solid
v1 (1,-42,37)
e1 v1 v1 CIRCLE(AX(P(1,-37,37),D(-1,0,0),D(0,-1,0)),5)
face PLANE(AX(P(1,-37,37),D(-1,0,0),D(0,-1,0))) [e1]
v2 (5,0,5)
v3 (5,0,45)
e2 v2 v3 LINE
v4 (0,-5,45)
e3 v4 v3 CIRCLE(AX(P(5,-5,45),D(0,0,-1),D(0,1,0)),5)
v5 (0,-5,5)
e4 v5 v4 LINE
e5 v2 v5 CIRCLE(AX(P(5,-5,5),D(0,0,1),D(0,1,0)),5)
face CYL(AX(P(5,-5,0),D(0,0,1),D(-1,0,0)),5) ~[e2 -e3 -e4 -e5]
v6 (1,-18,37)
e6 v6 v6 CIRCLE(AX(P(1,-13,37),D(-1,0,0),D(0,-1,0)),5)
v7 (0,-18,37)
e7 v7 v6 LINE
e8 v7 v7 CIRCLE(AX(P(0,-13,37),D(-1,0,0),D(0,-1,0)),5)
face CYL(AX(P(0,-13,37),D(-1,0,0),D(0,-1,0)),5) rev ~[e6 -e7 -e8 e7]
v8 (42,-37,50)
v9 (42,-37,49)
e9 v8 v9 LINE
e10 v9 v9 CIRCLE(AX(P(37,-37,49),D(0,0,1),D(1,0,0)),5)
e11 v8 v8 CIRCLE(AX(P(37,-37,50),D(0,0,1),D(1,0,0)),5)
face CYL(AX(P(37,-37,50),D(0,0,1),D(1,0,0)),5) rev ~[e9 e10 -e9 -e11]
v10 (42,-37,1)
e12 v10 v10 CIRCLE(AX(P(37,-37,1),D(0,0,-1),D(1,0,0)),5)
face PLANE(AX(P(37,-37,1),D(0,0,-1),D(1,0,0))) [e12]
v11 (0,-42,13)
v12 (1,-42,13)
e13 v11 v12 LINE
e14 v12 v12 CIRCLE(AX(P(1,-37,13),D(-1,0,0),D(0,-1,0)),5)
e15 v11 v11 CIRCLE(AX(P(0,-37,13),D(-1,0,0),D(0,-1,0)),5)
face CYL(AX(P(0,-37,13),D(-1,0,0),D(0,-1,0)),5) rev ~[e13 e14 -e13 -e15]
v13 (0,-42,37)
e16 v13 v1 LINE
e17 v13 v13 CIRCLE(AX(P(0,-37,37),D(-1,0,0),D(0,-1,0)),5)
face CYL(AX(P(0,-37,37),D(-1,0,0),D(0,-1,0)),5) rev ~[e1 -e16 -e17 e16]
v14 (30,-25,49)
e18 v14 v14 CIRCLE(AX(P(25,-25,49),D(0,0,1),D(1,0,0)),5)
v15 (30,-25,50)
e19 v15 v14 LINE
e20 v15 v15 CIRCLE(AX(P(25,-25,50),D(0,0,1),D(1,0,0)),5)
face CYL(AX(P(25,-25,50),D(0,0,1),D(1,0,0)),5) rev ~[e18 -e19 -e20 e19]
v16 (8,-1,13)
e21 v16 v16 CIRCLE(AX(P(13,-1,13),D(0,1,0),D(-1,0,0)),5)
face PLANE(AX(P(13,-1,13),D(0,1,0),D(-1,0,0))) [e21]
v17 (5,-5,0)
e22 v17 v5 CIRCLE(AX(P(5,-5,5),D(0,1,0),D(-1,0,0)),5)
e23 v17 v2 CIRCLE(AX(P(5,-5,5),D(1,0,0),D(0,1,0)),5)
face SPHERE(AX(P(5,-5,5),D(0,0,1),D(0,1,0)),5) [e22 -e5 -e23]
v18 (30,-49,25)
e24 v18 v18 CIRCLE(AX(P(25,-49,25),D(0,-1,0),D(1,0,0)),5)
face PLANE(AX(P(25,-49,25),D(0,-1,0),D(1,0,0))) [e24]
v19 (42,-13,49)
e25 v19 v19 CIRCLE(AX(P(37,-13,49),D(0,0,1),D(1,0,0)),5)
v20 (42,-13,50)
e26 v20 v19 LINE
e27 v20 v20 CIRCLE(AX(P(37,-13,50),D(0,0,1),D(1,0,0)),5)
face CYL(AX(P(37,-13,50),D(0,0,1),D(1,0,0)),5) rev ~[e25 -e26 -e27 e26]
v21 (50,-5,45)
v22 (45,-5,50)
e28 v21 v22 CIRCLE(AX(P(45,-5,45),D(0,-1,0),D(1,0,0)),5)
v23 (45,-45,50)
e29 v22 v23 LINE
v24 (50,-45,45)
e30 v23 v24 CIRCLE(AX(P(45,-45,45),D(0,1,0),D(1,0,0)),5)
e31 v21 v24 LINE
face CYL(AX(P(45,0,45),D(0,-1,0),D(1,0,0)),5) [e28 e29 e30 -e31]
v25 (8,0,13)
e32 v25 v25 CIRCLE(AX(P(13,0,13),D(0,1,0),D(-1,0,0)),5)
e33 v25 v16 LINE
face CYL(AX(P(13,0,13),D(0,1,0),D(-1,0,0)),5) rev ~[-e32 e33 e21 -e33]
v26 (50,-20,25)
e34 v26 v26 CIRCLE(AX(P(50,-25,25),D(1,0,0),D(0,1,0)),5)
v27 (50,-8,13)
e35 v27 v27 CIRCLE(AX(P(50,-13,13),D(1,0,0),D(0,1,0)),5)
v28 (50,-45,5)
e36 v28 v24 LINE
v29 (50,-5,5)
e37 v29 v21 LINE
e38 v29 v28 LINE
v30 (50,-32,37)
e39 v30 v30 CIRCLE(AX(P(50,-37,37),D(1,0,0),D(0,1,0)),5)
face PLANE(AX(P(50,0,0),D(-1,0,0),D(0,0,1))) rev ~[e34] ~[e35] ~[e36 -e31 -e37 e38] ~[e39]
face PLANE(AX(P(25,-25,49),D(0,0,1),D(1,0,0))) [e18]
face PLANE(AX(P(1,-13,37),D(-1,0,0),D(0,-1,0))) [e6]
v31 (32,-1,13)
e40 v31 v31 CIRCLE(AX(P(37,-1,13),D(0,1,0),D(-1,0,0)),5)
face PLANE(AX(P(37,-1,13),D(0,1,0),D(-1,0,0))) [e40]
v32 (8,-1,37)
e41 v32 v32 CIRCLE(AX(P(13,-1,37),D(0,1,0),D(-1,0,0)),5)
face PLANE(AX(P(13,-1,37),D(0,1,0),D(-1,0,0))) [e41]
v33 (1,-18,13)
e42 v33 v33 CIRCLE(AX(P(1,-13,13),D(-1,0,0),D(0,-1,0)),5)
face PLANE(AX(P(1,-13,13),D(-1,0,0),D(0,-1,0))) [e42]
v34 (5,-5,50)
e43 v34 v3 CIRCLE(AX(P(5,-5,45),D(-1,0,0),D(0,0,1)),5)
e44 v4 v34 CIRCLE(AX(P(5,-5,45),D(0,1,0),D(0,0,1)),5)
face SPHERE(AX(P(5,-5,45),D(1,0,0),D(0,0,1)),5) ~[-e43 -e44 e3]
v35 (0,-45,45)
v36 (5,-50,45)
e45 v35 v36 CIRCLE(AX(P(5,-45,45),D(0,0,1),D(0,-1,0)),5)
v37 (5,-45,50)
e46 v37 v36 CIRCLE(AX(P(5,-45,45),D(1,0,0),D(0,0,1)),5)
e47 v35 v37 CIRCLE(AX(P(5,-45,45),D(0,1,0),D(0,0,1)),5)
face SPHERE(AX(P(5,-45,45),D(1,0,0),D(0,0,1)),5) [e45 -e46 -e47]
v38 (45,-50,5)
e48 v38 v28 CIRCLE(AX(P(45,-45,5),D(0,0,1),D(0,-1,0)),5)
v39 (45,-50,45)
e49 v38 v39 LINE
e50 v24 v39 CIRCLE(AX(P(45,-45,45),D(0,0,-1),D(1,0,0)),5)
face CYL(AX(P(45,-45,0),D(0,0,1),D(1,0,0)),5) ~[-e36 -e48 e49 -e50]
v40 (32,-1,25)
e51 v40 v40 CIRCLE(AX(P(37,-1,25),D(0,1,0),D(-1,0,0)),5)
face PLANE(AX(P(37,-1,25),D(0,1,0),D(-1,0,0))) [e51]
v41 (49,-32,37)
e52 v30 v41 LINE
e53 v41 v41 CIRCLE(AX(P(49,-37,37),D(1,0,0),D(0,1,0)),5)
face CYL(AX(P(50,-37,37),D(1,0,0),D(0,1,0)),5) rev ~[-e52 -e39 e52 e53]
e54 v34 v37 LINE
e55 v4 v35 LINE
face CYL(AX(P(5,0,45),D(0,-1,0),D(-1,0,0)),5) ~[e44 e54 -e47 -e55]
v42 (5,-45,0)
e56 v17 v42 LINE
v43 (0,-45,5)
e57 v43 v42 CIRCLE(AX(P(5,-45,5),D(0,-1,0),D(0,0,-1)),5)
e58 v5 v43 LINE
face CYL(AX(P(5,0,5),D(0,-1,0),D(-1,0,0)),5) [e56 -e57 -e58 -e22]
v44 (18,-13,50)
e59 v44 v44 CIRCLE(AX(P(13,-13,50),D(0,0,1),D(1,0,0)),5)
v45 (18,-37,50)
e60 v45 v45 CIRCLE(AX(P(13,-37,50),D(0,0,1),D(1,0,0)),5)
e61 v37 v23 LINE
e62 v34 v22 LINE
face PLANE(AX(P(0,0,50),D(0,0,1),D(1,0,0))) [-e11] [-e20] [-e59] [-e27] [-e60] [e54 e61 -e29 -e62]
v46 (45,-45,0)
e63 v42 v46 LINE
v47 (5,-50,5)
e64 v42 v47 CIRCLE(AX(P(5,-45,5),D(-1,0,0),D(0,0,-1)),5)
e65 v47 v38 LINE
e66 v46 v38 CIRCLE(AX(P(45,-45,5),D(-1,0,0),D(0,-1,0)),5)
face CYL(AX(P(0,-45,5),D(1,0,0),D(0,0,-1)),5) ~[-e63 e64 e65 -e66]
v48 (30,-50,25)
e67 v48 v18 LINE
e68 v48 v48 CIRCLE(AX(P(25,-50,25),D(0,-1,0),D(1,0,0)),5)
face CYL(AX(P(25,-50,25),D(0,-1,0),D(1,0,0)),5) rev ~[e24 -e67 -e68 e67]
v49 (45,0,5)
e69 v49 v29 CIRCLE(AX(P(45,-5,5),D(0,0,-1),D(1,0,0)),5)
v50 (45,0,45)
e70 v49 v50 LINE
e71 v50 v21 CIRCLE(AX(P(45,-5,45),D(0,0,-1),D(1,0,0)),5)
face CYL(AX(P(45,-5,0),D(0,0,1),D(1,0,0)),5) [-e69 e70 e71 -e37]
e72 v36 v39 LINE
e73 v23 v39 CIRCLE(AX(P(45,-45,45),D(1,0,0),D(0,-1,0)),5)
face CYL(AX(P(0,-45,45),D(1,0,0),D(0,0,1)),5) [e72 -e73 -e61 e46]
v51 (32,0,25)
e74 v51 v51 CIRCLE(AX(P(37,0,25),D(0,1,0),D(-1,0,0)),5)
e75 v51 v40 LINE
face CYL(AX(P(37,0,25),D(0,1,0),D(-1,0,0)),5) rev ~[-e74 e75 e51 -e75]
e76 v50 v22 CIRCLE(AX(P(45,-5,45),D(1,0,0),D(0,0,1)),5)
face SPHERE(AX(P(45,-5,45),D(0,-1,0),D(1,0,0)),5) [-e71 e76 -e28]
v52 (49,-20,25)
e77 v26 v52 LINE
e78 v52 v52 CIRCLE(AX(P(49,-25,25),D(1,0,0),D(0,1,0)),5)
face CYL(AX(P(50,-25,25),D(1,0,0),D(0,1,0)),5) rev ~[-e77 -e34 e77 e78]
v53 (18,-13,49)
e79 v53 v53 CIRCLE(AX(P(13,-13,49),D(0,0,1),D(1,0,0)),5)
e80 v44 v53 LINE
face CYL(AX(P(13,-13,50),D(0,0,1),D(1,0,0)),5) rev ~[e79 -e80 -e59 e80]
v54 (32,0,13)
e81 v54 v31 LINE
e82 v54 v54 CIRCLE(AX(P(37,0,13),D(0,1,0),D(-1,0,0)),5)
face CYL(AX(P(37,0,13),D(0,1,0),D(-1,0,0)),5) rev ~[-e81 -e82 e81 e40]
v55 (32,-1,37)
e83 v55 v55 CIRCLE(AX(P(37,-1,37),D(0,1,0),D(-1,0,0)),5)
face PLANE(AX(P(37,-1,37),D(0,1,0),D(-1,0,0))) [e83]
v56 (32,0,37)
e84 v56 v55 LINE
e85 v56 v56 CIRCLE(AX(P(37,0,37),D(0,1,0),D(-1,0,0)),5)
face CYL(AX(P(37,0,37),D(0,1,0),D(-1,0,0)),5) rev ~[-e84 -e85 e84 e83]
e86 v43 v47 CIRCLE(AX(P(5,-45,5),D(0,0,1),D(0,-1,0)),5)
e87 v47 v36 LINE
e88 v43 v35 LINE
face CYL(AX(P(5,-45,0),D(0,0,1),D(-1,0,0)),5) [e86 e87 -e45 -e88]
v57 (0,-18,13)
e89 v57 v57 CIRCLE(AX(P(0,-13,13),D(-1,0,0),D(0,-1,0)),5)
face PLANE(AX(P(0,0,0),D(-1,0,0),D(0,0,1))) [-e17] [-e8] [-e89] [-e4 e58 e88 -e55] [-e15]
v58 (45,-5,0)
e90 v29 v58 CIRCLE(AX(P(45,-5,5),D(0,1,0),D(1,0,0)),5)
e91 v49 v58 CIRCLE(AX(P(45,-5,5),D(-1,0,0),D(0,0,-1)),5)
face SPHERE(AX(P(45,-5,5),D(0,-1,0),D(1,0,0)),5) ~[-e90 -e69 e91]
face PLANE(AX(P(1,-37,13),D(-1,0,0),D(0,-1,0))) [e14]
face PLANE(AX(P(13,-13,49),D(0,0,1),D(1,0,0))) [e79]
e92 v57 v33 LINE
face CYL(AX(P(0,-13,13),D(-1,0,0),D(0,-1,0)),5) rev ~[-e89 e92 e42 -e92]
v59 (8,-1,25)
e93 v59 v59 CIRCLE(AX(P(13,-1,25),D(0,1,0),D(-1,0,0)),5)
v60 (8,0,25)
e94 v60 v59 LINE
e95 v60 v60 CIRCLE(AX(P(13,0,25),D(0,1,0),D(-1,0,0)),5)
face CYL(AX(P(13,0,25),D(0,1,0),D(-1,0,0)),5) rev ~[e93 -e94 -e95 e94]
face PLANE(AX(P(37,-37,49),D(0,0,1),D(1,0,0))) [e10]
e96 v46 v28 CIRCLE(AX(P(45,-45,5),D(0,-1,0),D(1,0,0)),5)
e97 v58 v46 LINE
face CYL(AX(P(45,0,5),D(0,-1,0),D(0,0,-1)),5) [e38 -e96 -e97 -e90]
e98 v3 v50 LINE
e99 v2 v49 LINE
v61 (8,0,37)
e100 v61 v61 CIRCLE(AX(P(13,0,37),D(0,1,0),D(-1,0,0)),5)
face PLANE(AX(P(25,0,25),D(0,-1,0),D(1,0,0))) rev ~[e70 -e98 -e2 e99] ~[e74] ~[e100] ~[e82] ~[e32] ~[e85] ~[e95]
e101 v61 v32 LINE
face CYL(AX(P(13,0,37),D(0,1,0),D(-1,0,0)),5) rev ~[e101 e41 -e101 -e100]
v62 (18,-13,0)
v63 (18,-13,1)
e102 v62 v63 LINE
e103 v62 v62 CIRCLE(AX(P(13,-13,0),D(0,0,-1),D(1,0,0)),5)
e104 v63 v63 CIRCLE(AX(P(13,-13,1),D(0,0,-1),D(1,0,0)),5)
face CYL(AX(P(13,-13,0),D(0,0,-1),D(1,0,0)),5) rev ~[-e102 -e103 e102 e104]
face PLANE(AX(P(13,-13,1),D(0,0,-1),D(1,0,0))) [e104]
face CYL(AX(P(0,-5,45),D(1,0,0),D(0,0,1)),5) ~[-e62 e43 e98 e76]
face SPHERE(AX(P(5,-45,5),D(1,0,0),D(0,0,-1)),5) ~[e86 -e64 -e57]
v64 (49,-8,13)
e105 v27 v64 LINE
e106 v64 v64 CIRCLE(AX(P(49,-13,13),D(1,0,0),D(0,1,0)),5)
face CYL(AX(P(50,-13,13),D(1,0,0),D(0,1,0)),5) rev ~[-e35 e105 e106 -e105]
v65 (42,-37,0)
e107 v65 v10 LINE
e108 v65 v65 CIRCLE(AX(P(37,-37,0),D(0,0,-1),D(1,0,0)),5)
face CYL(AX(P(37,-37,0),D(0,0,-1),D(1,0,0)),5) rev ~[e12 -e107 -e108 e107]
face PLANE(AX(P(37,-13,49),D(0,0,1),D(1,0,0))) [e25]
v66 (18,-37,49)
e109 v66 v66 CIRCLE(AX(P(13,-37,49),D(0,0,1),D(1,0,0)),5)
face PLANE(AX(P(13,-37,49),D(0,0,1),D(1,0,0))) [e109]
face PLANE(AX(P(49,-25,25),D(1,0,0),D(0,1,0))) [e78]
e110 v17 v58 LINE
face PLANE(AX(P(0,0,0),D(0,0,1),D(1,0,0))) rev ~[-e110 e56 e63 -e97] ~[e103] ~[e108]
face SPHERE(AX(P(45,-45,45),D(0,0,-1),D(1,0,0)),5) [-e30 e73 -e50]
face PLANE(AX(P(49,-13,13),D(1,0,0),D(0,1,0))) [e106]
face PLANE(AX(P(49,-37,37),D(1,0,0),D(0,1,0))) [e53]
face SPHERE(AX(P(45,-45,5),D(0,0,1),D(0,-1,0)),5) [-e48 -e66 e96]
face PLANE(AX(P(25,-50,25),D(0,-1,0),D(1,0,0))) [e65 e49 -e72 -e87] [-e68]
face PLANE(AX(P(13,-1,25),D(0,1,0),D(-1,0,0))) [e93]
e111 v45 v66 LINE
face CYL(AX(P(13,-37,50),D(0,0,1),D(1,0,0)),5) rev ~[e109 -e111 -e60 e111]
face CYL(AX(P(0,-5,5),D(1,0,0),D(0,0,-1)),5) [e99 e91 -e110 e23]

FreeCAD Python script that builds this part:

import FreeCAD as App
import Part
import Sketcher


def add_polygon(sketch, points):
    """Adds a closed chain of lines whose ends are joined by coincident constraints."""
    first, n = sketch.GeometryCount, len(points)
    for a, b in zip(points, points[1:] + points[:1]):
        sketch.addGeometry(Part.LineSegment(App.Vector(*a, 0), App.Vector(*b, 0)), False)
    for i in range(n):
        sketch.addConstraint(Sketcher.Constraint("Coincident", first + i, 2, first + (i + 1) % n, 1))

doc = App.newDocument("Part")
body = doc.addObject("PartDesign::Body", "Body")

sketch1 = body.newObject("Sketcher::SketchObject", "Sketch")
sketch1.AttachmentSupport = (doc.getObject("XZ_Plane"), [""])
sketch1.MapMode = "FlatFace"
add_polygon(sketch1, [(0, 50), (0, 0), (50, 0), (50, 50)])
sketch1.addConstraint(Sketcher.Constraint("Vertical", 0))
sketch1.addConstraint(Sketcher.Constraint("Horizontal", 1))
sketch1.addConstraint(Sketcher.Constraint("Vertical", 2))
sketch1.addConstraint(Sketcher.Constraint("Horizontal", 3))
sketch1.addConstraint(Sketcher.Constraint("Coincident", 0, 2, -1, 1))
sketch1.addConstraint(Sketcher.Constraint("Equal", 3, 0))
sketch1.addConstraint(Sketcher.Constraint("DistanceX", 1, 1, 1, 2, 50.0))
pad1 = body.newObject("PartDesign::Pad", "Pad")
pad1.Profile = sketch1
pad1.Length = 50
doc.recompute()

fillet = body.newObject("PartDesign::Fillet", "Fillet")
fillet.Base = (pad1, ["Edge1"])
fillet.UseAllEdges = True
fillet.Radius = 5

sketch2 = body.newObject("Sketcher::SketchObject", "Sketch001")
sketch2.AttachmentSupport = (doc.getObject("XZ_Plane"), [""])
sketch2.MapMode = "FlatFace"
sketch2.AttachmentOffset = App.Placement(App.Vector(0, 0, 50), App.Rotation())
sketch2.addGeometry(Part.Circle(App.Vector(25, 25, 0), App.Vector(0, 0, 1), 5), False)
sketch2.addConstraint(Sketcher.Constraint("Diameter", 0, 10.0))
sketch2.addConstraint(Sketcher.Constraint("DistanceX", -1, 1, 0, 3, 25.0))
sketch2.addConstraint(Sketcher.Constraint("DistanceY", -1, 1, 0, 3, 25.0))
pocket1 = body.newObject("PartDesign::Pocket", "Pocket")
pocket1.Profile = sketch2
pocket1.Length = 1

sketch3 = body.newObject("Sketcher::SketchObject", "Sketch002")
sketch3.AttachmentSupport = (doc.getObject("XZ_Plane"), [""])
sketch3.MapMode = "FlatFace"
sketch3.addGeometry(Part.Circle(App.Vector(37, 37, 0), App.Vector(0, 0, 1), 5), False)
sketch3.addGeometry(Part.Circle(App.Vector(13, 37, 0), App.Vector(0, 0, 1), 5), False)
sketch3.addGeometry(Part.Circle(App.Vector(37, 25, 0), App.Vector(0, 0, 1), 5), False)
sketch3.addGeometry(Part.Circle(App.Vector(13, 25, 0), App.Vector(0, 0, 1), 5), False)
sketch3.addGeometry(Part.Circle(App.Vector(13, 13, 0), App.Vector(0, 0, 1), 5), False)
sketch3.addGeometry(Part.Circle(App.Vector(37, 13, 0), App.Vector(0, 0, 1), 5), False)
sketch3.addConstraint(Sketcher.Constraint("Equal", 0, 1))
sketch3.addConstraint(Sketcher.Constraint("Equal", 1, 2))
sketch3.addConstraint(Sketcher.Constraint("Equal", 2, 3))
sketch3.addConstraint(Sketcher.Constraint("Equal", 3, 4))
sketch3.addConstraint(Sketcher.Constraint("Equal", 4, 5))
sketch3.addConstraint(Sketcher.Constraint("Horizontal", 0, 3, 1, 3))
sketch3.addConstraint(Sketcher.Constraint("Horizontal", 2, 3, 3, 3))
sketch3.addConstraint(Sketcher.Constraint("Horizontal", 4, 3, 5, 3))
sketch3.addConstraint(Sketcher.Constraint("Vertical", 0, 3, 2, 3))
sketch3.addConstraint(Sketcher.Constraint("Vertical", 1, 3, 3, 3))
sketch3.addConstraint(Sketcher.Constraint("Vertical", 3, 3, 4, 3))
sketch3.addConstraint(Sketcher.Constraint("Vertical", 2, 3, 5, 3))
sketch3.addConstraint(Sketcher.Constraint("Diameter", 0, 10.0))
sketch3.addConstraint(Sketcher.Constraint("DistanceX", -1, 1, 0, 3, 37.0))
sketch3.addConstraint(Sketcher.Constraint("DistanceY", -1, 1, 0, 3, 37.0))
sketch3.addConstraint(Sketcher.Constraint("DistanceX", -1, 1, 1, 3, 13.0))
sketch3.addConstraint(Sketcher.Constraint("DistanceY", -1, 1, 2, 3, 25.0))
sketch3.addConstraint(Sketcher.Constraint("DistanceY", -1, 1, 4, 3, 13.0))
pocket2 = body.newObject("PartDesign::Pocket", "Pocket001")
pocket2.Profile = sketch3
pocket2.Length = 1
pocket2.Reversed = True

sketch4 = body.newObject("Sketcher::SketchObject", "Sketch003")
sketch4.AttachmentSupport = (doc.getObject("XY_Plane"), [""])
sketch4.MapMode = "FlatFace"
sketch4.AttachmentOffset = App.Placement(App.Vector(0, 0, 50), App.Rotation())
sketch4.addGeometry(Part.Circle(App.Vector(37, -13, 0), App.Vector(0, 0, 1), 5), False)
sketch4.addGeometry(Part.Circle(App.Vector(37, -37, 0), App.Vector(0, 0, 1), 5), False)
sketch4.addGeometry(Part.Circle(App.Vector(25, -25, 0), App.Vector(0, 0, 1), 5), False)
sketch4.addGeometry(Part.Circle(App.Vector(13, -13, 0), App.Vector(0, 0, 1), 5), False)
sketch4.addGeometry(Part.Circle(App.Vector(13, -37, 0), App.Vector(0, 0, 1), 5), False)
sketch4.addConstraint(Sketcher.Constraint("Equal", 0, 1))
sketch4.addConstraint(Sketcher.Constraint("Equal", 1, 2))
sketch4.addConstraint(Sketcher.Constraint("Equal", 2, 3))
sketch4.addConstraint(Sketcher.Constraint("Equal", 3, 4))
sketch4.addConstraint(Sketcher.Constraint("Horizontal", 0, 3, 3, 3))
sketch4.addConstraint(Sketcher.Constraint("Horizontal", 1, 3, 4, 3))
sketch4.addConstraint(Sketcher.Constraint("Vertical", 0, 3, 1, 3))
sketch4.addConstraint(Sketcher.Constraint("Vertical", 3, 3, 4, 3))
sketch4.addConstraint(Sketcher.Constraint("Diameter", 0, 10.0))
sketch4.addConstraint(Sketcher.Constraint("DistanceX", -1, 1, 0, 3, 37.0))
sketch4.addConstraint(Sketcher.Constraint("DistanceY", 0, 3, -1, 1, 13.0))
sketch4.addConstraint(Sketcher.Constraint("DistanceY", 1, 3, -1, 1, 37.0))
sketch4.addConstraint(Sketcher.Constraint("DistanceX", -1, 1, 2, 3, 25.0))
sketch4.addConstraint(Sketcher.Constraint("DistanceY", 2, 3, -1, 1, 25.0))
sketch4.addConstraint(Sketcher.Constraint("DistanceX", -1, 1, 3, 3, 13.0))
pocket3 = body.newObject("PartDesign::Pocket", "Pocket002")
pocket3.Profile = sketch4
pocket3.Length = 1

sketch5 = body.newObject("Sketcher::SketchObject", "Sketch004")
sketch5.AttachmentSupport = (doc.getObject("XY_Plane"), [""])
sketch5.MapMode = "FlatFace"
sketch5.addGeometry(Part.Circle(App.Vector(37, -37, 0), App.Vector(0, 0, 1), 5), False)
sketch5.addGeometry(Part.Circle(App.Vector(13, -13, 0), App.Vector(0, 0, 1), 5), False)
sketch5.addConstraint(Sketcher.Constraint("Equal", 0, 1))
sketch5.addConstraint(Sketcher.Constraint("Diameter", 0, 10.0))
sketch5.addConstraint(Sketcher.Constraint("DistanceX", -1, 1, 0, 3, 37.0))
sketch5.addConstraint(Sketcher.Constraint("DistanceY", 0, 3, -1, 1, 37.0))
sketch5.addConstraint(Sketcher.Constraint("DistanceX", -1, 1, 1, 3, 13.0))
sketch5.addConstraint(Sketcher.Constraint("DistanceY", 1, 3, -1, 1, 13.0))
pocket4 = body.newObject("PartDesign::Pocket", "Pocket003")
pocket4.Profile = sketch5
pocket4.Length = 1
pocket4.Reversed = True

sketch6 = body.newObject("Sketcher::SketchObject", "Sketch005")
sketch6.AttachmentSupport = (doc.getObject("YZ_Plane"), [""])
sketch6.MapMode = "FlatFace"
sketch6.AttachmentOffset = App.Placement(App.Vector(0, 0, 50), App.Rotation())
sketch6.addGeometry(Part.Circle(App.Vector(-37, 37, 0), App.Vector(0, 0, 1), 5), False)
sketch6.addGeometry(Part.Circle(App.Vector(-25, 25, 0), App.Vector(0, 0, 1), 5), False)
sketch6.addGeometry(Part.Circle(App.Vector(-13, 13, 0), App.Vector(0, 0, 1), 5), False)
sketch6.addConstraint(Sketcher.Constraint("Equal", 0, 1))
sketch6.addConstraint(Sketcher.Constraint("Equal", 1, 2))
sketch6.addConstraint(Sketcher.Constraint("Diameter", 0, 10.0))
sketch6.addConstraint(Sketcher.Constraint("DistanceX", 0, 3, -1, 1, 37.0))
sketch6.addConstraint(Sketcher.Constraint("DistanceY", -1, 1, 0, 3, 37.0))
sketch6.addConstraint(Sketcher.Constraint("DistanceX", 1, 3, -1, 1, 25.0))
sketch6.addConstraint(Sketcher.Constraint("DistanceY", -1, 1, 1, 3, 25.0))
sketch6.addConstraint(Sketcher.Constraint("DistanceX", 2, 3, -1, 1, 13.0))
sketch6.addConstraint(Sketcher.Constraint("DistanceY", -1, 1, 2, 3, 13.0))
pocket5 = body.newObject("PartDesign::Pocket", "Pocket004")
pocket5.Profile = sketch6
pocket5.Length = 1

sketch7 = body.newObject("Sketcher::SketchObject", "Sketch006")
sketch7.AttachmentSupport = (doc.getObject("YZ_Plane"), [""])
sketch7.MapMode = "FlatFace"
sketch7.addGeometry(Part.Circle(App.Vector(-37, 37, 0), App.Vector(0, 0, 1), 5), False)
sketch7.addGeometry(Part.Circle(App.Vector(-37, 13, 0), App.Vector(0, 0, 1), 5), False)
sketch7.addGeometry(Part.Circle(App.Vector(-13, 13, 0), App.Vector(0, 0, 1), 5), False)
sketch7.addGeometry(Part.Circle(App.Vector(-13, 37, 0), App.Vector(0, 0, 1), 5), False)
sketch7.addConstraint(Sketcher.Constraint("Equal", 0, 1))
sketch7.addConstraint(Sketcher.Constraint("Equal", 1, 2))
sketch7.addConstraint(Sketcher.Constraint("Equal", 2, 3))
sketch7.addConstraint(Sketcher.Constraint("Horizontal", 1, 3, 2, 3))
sketch7.addConstraint(Sketcher.Constraint("Horizontal", 0, 3, 3, 3))
sketch7.addConstraint(Sketcher.Constraint("Vertical", 0, 3, 1, 3))
sketch7.addConstraint(Sketcher.Constraint("Vertical", 2, 3, 3, 3))
sketch7.addConstraint(Sketcher.Constraint("Diameter", 0, 10.0))
sketch7.addConstraint(Sketcher.Constraint("DistanceX", 0, 3, -1, 1, 37.0))
sketch7.addConstraint(Sketcher.Constraint("DistanceY", -1, 1, 0, 3, 37.0))
sketch7.addConstraint(Sketcher.Constraint("DistanceY", -1, 1, 1, 3, 13.0))
sketch7.addConstraint(Sketcher.Constraint("DistanceX", 2, 3, -1, 1, 13.0))
pocket6 = body.newObject("PartDesign::Pocket", "Pocket005")
pocket6.Profile = sketch7
pocket6.Length = 1
pocket6.Reversed = True

doc.recompute()
